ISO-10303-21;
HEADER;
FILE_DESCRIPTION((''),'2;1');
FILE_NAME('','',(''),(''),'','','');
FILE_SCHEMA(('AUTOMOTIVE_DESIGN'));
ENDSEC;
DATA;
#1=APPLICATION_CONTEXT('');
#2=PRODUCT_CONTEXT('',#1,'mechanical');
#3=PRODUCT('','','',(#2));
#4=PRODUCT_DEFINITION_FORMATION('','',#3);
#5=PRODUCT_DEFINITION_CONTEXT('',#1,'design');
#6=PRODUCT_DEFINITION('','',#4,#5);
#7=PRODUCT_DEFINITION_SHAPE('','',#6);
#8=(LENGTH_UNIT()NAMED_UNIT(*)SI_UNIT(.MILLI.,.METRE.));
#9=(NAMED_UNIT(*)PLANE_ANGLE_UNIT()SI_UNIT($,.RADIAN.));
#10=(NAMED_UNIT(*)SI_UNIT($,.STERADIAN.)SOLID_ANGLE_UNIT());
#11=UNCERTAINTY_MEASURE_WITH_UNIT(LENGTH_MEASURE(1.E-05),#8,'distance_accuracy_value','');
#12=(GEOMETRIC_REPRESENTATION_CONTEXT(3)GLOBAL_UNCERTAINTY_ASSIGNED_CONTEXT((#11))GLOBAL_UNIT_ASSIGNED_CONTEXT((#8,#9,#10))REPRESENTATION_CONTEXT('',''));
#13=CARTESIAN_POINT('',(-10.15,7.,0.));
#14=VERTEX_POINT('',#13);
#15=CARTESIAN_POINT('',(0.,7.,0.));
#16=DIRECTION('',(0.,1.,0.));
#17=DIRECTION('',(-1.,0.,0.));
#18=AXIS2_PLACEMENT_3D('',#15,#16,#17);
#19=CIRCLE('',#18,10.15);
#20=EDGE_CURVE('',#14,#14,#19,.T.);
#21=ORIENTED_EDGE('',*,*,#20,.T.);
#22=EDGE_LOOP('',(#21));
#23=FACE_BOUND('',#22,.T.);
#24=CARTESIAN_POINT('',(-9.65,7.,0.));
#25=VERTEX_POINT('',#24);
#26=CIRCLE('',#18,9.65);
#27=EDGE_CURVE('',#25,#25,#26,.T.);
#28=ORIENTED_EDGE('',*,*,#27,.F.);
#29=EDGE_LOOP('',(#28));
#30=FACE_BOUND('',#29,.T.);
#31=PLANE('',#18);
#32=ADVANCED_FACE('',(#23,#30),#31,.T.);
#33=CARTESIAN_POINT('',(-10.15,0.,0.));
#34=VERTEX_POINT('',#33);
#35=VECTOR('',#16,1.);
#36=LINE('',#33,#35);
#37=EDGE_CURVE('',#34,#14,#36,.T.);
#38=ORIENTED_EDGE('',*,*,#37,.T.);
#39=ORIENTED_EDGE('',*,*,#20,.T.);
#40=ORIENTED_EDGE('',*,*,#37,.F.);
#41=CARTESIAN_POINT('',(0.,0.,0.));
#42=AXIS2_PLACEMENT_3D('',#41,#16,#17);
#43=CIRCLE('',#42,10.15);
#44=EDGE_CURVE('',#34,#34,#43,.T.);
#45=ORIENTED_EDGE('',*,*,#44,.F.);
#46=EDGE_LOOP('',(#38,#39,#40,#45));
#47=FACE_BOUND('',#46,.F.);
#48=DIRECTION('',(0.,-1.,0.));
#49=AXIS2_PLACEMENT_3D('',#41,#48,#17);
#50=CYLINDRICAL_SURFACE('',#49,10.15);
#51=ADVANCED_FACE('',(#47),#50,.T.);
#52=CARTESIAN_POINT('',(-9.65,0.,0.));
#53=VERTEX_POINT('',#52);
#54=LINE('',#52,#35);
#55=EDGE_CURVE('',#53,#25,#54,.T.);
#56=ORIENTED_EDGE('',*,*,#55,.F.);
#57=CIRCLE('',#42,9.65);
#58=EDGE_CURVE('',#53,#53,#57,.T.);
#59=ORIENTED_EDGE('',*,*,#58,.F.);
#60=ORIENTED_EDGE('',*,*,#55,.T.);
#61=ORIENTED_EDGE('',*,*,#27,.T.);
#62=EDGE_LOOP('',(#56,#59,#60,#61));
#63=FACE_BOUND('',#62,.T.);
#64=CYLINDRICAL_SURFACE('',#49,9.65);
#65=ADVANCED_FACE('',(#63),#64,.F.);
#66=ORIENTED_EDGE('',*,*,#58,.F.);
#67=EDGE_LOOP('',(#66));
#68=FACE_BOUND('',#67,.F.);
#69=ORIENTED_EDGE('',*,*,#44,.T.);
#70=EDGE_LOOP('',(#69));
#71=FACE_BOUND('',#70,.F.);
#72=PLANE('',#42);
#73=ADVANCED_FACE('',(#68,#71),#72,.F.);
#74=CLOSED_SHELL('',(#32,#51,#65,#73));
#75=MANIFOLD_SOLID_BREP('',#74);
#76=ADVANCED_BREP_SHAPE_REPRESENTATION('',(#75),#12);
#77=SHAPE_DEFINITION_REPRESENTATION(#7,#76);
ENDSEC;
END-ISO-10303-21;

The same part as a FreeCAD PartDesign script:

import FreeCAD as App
import Part
import Sketcher

V = App.Vector
Q = App.Units.Quantity

doc = App.newDocument("Part")
body = doc.addObject("PartDesign::Body", "Body")

# Sketch on XZ plane
sketch1 = body.newObject("Sketcher::SketchObject", "Sketch")
sketch1.AttachmentSupport = (doc.getObject("XZ_Plane"), [""])
sketch1.MapMode = "FlatFace"
sketch1.addGeometry([
    Part.Circle(V(0, 0, 0), V(0, 0, 1), 10),
    Part.Circle(V(0, 0, 0), V(0, 0, 1), 10),
], False)
sketch1.addConstraint([
    Sketcher.Constraint("Coincident", 0, 3, -1, 1),
    Sketcher.Constraint("Coincident", 1, 3, -1, 1),
    Sketcher.Constraint("Diameter", 0, Q("20.3 mm")),
    Sketcher.Constraint("Diameter", 1, Q("19.3 mm")),
])
pad1 = body.newObject("PartDesign::Pad", "Pad")
pad1.Profile = sketch1
pad1.Length = 7
pad1.Reversed = True

doc.recompute()
